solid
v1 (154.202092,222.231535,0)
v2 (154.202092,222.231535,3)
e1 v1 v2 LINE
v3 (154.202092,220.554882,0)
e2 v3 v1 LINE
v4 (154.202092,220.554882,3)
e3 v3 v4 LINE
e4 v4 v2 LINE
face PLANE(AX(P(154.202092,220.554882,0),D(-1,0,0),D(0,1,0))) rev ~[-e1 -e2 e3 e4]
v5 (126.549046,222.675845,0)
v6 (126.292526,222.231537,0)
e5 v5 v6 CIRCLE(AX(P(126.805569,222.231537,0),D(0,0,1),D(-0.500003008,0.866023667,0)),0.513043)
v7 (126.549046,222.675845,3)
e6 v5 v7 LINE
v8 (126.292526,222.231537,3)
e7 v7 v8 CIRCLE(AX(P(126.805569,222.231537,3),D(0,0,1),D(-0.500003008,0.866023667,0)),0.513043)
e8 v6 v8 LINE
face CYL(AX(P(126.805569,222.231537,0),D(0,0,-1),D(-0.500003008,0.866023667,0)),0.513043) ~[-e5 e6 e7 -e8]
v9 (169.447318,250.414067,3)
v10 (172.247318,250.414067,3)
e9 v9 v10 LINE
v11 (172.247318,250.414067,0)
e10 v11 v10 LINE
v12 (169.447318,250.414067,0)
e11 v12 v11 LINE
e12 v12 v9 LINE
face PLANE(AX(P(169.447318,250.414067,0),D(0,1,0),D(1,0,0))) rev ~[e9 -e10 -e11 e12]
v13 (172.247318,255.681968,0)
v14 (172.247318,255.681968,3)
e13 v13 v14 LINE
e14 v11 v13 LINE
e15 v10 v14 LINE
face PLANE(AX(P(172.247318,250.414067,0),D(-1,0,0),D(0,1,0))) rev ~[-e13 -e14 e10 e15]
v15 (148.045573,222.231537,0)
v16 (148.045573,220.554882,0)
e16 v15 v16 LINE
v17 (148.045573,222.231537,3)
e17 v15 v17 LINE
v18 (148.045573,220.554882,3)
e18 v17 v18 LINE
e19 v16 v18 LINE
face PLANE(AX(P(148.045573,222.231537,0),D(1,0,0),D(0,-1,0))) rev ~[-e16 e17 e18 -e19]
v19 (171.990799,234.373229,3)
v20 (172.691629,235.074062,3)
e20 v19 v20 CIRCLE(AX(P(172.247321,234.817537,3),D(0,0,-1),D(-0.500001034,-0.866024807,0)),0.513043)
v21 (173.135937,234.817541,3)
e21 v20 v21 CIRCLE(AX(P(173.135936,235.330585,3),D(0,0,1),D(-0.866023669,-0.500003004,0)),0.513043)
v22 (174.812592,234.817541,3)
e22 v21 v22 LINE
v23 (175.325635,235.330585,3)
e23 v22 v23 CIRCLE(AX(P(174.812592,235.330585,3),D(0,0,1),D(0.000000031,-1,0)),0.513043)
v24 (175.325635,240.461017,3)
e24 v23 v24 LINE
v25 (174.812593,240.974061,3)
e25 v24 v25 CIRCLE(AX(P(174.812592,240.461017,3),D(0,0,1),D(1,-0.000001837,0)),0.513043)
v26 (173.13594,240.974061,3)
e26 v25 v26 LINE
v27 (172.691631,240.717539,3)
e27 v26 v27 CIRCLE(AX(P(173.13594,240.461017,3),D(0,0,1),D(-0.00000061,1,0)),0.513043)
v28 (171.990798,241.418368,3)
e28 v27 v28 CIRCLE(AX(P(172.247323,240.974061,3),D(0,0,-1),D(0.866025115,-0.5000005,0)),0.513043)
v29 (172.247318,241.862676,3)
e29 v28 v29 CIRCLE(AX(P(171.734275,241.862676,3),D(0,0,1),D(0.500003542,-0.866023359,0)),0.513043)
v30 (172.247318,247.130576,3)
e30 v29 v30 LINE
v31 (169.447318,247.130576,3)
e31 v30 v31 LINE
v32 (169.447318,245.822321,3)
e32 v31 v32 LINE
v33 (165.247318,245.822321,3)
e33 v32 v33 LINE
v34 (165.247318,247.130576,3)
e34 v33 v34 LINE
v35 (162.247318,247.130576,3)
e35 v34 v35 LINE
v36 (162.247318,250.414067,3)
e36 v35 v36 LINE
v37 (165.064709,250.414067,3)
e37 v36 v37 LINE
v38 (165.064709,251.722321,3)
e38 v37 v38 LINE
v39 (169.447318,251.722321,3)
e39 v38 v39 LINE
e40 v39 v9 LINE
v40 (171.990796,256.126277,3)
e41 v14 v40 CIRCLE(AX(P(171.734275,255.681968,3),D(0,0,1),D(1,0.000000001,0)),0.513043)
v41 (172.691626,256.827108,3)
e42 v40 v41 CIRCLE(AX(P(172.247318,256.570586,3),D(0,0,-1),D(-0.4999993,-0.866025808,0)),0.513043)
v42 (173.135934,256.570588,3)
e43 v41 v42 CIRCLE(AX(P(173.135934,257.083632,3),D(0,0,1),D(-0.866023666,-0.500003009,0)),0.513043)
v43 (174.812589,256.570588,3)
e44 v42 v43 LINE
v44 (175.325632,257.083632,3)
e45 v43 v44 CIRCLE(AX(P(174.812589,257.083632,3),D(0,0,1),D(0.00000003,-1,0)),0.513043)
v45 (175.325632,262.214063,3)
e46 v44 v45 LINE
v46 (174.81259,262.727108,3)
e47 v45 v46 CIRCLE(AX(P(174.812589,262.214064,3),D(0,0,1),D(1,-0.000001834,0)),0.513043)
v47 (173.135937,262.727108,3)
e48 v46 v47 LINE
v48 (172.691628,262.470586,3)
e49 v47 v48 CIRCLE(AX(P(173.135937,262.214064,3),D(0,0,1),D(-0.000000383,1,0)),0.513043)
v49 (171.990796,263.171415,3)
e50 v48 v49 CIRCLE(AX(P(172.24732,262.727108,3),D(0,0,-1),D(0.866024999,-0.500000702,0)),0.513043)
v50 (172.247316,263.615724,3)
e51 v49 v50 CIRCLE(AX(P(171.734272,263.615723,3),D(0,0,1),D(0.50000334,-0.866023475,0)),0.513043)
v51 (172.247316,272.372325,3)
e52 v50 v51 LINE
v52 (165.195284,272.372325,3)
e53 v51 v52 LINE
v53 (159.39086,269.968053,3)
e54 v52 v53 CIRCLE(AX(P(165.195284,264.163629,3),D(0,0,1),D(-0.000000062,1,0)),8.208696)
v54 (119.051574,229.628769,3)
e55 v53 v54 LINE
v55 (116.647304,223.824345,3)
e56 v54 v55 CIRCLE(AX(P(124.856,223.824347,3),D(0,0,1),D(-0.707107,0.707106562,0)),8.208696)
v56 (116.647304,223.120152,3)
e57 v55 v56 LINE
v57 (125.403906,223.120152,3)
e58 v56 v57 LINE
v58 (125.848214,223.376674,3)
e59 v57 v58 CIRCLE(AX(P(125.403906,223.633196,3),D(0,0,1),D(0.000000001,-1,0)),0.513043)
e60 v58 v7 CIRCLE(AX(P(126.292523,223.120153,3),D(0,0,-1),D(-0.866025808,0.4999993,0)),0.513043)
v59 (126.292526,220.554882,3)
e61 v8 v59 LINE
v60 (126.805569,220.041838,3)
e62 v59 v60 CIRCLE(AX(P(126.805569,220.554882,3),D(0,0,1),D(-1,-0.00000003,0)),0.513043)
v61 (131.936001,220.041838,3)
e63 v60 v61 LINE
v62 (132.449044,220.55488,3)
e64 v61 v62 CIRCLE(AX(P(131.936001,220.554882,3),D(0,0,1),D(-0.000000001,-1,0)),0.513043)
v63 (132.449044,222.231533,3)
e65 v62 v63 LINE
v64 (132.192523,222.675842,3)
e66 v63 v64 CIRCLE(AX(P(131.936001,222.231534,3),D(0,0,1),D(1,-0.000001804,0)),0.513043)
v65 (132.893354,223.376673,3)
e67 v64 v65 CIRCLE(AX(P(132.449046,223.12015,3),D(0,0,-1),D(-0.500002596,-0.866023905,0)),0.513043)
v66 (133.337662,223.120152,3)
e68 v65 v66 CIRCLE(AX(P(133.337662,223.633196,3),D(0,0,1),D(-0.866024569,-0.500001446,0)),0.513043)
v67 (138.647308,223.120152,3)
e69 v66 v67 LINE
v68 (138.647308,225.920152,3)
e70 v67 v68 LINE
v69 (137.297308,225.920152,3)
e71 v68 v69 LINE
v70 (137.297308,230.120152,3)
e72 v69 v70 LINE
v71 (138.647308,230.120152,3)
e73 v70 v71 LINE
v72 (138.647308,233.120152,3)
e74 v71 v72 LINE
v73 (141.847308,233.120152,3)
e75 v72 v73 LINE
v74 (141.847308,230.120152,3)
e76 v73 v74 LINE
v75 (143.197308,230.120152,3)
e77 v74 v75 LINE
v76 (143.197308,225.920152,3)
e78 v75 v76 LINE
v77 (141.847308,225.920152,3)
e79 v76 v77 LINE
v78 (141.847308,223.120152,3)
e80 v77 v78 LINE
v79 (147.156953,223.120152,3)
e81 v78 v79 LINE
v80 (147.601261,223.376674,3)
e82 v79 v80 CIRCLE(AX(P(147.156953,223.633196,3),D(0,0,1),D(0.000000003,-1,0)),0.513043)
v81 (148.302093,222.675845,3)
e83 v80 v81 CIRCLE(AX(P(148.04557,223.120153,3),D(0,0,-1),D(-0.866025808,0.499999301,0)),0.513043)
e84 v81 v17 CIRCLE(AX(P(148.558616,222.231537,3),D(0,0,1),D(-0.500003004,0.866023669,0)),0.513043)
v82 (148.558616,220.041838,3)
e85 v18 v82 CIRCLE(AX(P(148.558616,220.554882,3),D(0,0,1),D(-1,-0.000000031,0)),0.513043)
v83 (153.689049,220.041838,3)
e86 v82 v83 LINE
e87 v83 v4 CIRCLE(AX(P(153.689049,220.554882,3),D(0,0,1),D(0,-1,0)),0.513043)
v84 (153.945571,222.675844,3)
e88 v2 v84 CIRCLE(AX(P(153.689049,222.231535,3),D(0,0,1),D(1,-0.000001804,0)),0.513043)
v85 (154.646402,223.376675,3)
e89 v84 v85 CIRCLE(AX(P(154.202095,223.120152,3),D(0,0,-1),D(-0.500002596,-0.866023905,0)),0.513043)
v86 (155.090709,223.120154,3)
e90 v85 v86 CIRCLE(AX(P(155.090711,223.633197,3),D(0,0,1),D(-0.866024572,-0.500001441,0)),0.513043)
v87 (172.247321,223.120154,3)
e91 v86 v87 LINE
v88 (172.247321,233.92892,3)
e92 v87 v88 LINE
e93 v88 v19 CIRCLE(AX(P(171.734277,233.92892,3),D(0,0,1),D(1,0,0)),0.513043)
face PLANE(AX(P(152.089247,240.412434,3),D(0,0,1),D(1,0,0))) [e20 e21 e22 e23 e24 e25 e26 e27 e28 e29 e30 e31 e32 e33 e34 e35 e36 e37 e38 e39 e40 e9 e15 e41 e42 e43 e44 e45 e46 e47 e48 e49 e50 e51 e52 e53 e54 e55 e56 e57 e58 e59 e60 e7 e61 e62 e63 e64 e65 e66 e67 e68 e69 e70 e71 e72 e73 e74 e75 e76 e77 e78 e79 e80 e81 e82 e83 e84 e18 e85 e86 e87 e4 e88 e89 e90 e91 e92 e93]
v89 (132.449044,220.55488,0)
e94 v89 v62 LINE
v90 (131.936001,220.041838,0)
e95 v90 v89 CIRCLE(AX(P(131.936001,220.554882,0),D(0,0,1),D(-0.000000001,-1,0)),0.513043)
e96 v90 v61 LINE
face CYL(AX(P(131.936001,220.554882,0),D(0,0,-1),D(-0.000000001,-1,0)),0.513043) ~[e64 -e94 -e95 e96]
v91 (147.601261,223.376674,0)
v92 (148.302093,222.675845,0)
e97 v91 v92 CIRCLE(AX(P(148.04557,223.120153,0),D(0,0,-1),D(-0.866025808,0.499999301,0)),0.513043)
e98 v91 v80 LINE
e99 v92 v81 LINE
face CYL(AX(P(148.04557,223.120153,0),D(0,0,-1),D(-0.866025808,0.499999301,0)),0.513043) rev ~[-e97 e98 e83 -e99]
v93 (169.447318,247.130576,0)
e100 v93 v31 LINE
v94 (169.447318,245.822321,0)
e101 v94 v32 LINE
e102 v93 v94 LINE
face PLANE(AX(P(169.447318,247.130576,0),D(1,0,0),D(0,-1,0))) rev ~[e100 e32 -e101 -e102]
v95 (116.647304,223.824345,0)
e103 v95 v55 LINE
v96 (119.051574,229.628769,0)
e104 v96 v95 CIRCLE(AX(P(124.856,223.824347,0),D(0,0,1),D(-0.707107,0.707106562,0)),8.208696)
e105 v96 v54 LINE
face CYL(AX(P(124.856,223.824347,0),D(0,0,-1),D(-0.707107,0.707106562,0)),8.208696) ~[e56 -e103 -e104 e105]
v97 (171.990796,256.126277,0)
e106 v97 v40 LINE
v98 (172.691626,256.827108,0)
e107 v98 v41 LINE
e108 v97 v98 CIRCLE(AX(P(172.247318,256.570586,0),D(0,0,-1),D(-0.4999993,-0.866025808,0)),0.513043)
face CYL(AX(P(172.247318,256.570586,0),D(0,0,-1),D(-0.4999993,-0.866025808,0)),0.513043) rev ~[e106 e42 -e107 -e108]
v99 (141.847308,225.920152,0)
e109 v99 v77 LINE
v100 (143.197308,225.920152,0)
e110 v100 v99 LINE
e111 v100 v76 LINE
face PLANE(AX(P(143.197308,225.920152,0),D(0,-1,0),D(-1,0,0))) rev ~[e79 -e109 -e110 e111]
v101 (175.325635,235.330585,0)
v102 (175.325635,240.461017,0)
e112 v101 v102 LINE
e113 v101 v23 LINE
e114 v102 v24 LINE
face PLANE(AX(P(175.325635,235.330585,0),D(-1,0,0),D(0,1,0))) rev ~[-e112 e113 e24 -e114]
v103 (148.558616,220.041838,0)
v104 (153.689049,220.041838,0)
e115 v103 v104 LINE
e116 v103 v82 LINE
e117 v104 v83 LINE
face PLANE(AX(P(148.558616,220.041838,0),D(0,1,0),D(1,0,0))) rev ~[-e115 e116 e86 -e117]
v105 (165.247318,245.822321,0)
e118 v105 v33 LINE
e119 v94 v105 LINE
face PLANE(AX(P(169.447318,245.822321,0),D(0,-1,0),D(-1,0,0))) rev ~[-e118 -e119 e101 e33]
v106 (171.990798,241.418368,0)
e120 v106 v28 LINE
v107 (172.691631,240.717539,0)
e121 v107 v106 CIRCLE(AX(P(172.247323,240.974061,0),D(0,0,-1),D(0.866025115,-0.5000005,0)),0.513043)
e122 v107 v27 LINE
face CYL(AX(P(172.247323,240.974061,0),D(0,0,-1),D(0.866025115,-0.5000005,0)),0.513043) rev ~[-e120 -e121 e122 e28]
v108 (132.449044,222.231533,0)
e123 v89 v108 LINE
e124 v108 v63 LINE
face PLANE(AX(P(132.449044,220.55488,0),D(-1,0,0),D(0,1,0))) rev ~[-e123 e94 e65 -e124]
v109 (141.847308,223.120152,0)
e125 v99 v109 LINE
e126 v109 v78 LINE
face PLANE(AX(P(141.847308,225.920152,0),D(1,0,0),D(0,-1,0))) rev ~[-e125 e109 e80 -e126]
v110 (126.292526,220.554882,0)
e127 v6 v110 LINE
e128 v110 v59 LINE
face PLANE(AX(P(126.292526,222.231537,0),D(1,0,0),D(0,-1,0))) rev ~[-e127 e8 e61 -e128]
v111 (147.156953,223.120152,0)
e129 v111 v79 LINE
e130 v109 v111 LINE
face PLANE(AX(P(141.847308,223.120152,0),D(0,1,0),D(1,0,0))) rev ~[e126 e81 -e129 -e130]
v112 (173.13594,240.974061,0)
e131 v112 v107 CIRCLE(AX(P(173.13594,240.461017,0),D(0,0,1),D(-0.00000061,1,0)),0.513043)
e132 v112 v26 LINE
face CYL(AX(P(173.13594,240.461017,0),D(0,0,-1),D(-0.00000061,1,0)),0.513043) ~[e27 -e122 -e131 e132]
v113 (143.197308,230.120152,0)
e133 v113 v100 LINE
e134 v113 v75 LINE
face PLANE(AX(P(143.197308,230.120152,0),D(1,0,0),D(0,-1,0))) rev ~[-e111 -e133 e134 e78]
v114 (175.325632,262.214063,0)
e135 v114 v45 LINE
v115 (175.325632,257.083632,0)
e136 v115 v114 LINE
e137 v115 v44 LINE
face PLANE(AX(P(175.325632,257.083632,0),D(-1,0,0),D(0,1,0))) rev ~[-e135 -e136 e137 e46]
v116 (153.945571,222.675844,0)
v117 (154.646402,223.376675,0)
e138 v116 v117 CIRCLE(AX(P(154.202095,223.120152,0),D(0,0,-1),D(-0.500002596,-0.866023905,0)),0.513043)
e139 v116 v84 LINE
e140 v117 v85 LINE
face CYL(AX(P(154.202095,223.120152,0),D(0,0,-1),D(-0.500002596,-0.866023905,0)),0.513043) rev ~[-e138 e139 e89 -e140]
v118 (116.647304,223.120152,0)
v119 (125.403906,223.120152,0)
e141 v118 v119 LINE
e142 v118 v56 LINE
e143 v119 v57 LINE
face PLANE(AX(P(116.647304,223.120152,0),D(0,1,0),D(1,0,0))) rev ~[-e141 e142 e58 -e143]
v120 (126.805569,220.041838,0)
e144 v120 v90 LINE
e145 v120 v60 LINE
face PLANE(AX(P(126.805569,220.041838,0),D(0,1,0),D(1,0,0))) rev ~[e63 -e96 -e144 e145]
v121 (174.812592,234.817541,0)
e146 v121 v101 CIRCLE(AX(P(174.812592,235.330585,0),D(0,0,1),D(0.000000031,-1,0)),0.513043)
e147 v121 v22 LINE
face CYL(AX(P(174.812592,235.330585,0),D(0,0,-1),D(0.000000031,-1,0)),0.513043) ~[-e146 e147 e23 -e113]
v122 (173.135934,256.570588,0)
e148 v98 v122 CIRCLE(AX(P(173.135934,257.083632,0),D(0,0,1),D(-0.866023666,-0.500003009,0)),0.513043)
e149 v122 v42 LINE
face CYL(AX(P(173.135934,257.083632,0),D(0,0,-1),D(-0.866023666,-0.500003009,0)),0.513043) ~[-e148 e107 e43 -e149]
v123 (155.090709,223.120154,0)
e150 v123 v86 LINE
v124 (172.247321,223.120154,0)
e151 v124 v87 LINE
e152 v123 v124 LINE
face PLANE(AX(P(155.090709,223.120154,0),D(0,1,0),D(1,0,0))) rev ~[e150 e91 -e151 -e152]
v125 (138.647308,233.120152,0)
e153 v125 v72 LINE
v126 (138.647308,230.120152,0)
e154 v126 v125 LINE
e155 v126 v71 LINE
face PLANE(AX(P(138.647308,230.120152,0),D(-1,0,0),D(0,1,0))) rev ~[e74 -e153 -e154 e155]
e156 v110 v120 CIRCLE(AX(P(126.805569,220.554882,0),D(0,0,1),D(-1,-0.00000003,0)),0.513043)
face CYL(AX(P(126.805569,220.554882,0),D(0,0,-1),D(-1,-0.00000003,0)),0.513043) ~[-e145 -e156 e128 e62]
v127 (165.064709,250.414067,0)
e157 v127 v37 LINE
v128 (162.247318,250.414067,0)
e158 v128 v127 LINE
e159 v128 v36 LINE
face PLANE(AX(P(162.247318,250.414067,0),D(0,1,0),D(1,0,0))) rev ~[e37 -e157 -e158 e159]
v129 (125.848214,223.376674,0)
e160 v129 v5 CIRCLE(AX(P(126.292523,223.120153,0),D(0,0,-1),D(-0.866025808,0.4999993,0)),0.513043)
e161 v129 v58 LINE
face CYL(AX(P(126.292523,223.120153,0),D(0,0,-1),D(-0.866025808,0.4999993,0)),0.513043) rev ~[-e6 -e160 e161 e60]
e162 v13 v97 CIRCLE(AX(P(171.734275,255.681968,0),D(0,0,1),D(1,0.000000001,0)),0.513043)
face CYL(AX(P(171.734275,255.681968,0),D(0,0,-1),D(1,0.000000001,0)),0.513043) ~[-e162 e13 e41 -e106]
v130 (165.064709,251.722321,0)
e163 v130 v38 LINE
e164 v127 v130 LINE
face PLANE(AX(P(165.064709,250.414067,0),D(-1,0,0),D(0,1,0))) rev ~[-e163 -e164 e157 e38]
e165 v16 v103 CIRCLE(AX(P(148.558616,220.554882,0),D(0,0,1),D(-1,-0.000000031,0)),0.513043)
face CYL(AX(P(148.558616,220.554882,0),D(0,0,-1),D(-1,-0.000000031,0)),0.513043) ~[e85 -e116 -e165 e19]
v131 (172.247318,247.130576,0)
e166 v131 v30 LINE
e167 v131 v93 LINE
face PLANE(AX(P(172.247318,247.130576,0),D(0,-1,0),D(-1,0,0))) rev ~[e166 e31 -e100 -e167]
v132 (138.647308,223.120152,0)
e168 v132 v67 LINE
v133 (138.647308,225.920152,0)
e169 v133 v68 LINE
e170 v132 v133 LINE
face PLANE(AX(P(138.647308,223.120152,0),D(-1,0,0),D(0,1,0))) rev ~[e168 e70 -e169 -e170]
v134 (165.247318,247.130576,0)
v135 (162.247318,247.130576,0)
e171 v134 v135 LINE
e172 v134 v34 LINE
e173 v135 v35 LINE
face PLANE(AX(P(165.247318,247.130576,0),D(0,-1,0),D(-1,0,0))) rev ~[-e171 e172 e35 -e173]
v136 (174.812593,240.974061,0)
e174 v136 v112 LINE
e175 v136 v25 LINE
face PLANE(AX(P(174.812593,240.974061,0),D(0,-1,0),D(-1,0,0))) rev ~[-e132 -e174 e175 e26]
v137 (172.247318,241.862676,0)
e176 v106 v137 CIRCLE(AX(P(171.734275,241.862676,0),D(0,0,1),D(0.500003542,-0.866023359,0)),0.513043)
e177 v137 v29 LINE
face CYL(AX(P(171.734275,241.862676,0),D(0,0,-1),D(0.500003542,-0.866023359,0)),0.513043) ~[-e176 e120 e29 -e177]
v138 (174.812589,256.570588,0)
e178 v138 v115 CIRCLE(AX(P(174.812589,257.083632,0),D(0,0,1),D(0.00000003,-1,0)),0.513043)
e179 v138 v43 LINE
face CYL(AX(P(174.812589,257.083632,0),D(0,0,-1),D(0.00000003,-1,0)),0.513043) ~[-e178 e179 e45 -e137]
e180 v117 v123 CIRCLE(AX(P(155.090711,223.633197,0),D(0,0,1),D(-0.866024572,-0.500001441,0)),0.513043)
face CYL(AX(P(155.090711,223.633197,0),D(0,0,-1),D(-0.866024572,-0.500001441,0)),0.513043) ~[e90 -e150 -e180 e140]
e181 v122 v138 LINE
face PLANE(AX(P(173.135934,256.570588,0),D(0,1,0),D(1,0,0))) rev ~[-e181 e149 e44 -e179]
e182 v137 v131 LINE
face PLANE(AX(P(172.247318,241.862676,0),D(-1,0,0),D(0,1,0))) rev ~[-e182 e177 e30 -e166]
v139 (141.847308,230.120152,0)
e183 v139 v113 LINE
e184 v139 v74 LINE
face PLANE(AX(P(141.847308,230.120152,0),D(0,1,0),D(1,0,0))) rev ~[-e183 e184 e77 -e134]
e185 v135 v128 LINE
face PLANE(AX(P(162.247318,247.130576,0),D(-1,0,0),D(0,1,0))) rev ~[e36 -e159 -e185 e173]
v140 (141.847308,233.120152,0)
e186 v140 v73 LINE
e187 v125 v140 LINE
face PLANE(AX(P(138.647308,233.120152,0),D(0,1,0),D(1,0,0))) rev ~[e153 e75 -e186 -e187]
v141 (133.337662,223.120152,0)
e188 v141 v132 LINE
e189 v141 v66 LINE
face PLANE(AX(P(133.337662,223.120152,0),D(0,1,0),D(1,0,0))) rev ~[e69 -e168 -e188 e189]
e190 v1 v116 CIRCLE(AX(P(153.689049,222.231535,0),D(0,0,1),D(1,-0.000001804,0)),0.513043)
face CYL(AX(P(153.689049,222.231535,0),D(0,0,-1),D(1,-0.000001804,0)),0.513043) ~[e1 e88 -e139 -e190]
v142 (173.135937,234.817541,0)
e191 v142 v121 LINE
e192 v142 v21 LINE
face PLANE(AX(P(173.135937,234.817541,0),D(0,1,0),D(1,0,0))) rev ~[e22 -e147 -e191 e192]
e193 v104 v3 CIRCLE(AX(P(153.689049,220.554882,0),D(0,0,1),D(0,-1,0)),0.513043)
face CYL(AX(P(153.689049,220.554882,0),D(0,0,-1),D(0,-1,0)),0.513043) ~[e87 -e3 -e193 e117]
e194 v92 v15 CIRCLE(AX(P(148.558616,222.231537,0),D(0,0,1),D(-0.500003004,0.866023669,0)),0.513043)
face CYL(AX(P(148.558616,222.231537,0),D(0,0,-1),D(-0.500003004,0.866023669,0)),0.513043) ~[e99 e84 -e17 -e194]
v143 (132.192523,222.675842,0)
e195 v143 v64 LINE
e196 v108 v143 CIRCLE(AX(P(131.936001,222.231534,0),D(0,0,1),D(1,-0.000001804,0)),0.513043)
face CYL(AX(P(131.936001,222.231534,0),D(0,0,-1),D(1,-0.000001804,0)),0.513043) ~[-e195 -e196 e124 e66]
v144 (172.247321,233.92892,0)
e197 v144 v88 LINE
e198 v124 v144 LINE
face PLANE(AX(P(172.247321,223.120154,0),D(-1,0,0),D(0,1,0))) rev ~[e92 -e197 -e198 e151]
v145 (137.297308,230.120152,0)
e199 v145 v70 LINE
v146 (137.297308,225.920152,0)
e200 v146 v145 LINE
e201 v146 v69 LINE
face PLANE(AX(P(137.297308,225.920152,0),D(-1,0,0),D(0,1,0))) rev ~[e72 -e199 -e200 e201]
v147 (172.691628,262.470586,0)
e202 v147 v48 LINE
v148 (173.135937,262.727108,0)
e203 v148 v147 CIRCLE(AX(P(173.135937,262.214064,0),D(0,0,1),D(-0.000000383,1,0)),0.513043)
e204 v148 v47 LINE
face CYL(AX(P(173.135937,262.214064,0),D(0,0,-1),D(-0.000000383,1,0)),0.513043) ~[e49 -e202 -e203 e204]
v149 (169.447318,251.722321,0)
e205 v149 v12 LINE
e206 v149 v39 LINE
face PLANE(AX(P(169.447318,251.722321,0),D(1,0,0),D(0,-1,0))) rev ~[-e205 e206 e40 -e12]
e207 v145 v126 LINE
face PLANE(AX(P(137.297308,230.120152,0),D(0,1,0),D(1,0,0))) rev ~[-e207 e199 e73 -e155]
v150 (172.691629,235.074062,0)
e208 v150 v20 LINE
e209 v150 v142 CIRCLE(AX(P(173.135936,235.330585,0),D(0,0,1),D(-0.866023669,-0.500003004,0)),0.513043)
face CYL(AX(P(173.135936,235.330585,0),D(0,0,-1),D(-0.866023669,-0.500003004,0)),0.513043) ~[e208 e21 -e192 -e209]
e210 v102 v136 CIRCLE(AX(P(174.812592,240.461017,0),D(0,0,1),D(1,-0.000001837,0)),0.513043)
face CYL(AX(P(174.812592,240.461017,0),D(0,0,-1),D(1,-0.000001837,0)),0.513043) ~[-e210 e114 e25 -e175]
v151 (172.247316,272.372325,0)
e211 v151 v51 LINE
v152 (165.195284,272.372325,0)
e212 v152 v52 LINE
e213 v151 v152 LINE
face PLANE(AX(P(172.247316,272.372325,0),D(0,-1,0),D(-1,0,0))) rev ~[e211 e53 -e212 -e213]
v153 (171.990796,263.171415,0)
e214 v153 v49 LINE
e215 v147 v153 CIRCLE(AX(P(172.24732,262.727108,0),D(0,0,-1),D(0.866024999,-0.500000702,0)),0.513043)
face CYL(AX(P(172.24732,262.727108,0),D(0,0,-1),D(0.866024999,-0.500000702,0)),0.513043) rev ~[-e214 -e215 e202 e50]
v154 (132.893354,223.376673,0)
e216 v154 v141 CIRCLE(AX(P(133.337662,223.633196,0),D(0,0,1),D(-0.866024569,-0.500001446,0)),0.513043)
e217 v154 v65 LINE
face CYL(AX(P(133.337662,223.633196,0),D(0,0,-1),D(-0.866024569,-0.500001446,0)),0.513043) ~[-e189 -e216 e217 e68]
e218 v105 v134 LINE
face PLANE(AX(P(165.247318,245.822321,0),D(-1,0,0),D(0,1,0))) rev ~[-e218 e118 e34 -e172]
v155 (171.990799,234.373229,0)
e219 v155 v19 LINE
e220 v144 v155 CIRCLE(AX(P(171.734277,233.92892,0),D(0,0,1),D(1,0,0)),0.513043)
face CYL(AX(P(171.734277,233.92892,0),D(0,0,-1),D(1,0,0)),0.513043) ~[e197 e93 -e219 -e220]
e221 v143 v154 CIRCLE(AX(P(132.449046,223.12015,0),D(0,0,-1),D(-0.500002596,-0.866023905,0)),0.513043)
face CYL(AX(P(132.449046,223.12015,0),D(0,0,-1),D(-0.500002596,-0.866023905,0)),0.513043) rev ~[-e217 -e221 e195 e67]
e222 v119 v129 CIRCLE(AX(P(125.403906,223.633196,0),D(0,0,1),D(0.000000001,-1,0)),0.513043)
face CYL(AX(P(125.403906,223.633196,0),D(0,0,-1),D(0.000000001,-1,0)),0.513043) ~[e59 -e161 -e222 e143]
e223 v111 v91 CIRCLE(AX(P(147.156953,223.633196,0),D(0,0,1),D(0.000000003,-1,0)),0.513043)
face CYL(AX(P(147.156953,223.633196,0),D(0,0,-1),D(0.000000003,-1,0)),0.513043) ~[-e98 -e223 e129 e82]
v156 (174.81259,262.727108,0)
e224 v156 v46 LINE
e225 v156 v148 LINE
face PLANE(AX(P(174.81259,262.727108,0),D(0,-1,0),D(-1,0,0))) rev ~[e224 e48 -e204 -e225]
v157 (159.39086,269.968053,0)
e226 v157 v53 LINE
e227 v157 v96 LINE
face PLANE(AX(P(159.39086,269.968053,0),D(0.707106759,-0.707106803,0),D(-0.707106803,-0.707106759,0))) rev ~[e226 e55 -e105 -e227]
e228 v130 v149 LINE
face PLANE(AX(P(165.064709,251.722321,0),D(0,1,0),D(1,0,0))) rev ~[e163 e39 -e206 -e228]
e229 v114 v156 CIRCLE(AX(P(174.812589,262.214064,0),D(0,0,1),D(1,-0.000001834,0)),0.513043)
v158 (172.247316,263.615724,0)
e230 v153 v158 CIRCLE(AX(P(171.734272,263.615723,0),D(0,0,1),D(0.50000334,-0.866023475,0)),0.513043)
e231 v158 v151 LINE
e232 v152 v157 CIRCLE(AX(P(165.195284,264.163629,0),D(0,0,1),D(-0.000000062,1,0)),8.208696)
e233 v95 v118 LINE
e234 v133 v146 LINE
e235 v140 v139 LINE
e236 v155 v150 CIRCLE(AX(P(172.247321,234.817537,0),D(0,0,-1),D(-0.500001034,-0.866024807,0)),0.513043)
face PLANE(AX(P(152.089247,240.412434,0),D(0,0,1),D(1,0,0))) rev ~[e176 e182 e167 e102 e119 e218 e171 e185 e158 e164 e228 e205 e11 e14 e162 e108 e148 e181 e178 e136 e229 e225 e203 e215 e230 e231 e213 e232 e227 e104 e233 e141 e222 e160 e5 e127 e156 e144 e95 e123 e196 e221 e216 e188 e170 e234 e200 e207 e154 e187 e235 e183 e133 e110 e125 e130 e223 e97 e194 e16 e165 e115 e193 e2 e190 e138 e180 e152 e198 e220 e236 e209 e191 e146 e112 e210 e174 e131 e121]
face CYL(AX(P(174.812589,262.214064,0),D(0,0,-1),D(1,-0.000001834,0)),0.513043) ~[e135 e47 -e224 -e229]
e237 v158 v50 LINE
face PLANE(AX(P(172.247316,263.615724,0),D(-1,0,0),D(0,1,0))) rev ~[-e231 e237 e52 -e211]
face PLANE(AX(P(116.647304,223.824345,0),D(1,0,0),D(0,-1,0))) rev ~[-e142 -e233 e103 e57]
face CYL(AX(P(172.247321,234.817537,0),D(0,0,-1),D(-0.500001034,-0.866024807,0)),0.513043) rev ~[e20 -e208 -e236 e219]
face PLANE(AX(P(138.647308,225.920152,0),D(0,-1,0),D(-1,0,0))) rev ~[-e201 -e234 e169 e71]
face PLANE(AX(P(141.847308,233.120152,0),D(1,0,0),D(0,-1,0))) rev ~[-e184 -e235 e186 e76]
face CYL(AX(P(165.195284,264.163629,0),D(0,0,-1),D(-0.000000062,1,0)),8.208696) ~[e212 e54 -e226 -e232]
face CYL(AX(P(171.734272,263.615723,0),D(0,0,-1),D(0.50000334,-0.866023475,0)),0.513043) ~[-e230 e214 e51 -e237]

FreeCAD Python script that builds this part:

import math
import FreeCAD as App
import Part
import Sketcher
Q = App.Units.Quantity

doc = App.newDocument("Part")
params = doc.addObject("Spreadsheet::Sheet", "Params")
for row, (alias, value) in enumerate([
    ("sketch1_width", "3 mm"),
    ("sketch1_height", "3 mm"),
    ("sketch1_height2", "3 mm"),
    ("sketch1_width2", "2.8 mm"),
    ("sketch1_width3", "4.2 mm"),
    ("pad1_length", "3 mm"),
], start=1):
    params.set(f"A{row}", alias)
    params.set(f"B{row}", "=" + value)
    params.setAlias(f"B{row}", alias)

body = doc.addObject("PartDesign::Body", "Body")

# Sketch on XY plane
sketch1 = body.newObject("Sketcher::SketchObject", "Sketch")
sketch1.AttachmentSupport = (doc.getObject("XY_Plane"), [""])
sketch1.MapMode = "FlatFace"
sketch1.addGeometry([
    Part.LineSegment(App.Vector(154.202092, 220.554882, 0), App.Vector(154.202092, 222.231535, 0)),  # 0
    Part.ArcOfCircle(Part.Circle(App.Vector(153.689049, 222.231535, 0), App.Vector(0, 0, 1), 0.513043), math.radians(-0.000103), math.radians(59.999897)),  # 1
    Part.ArcOfCircle(Part.Circle(App.Vector(154.202095, 223.120152, 0), App.Vector(0, 0, 1), 0.513043), math.radians(30.000213), math.radians(239.999828)),  # 2
    Part.ArcOfCircle(Part.Circle(App.Vector(155.090711, 223.633197, 0), App.Vector(0, 0, 1), 0.513043), math.radians(-149.999905), math.radians(-90.00018)),  # 3
    Part.LineSegment(App.Vector(155.090709, 223.120154, 0), App.Vector(172.247321, 223.120154, 0)),  # 4
    Part.LineSegment(App.Vector(172.247321, 223.120154, 0), App.Vector(172.247321, 233.92892, 0)),  # 5
    Part.ArcOfCircle(Part.Circle(App.Vector(171.734277, 233.92892, 0), App.Vector(0, 0, 1), 0.513043), math.radians(0), math.radians(60)),  # 6
    Part.ArcOfCircle(Part.Circle(App.Vector(172.247321, 234.817537, 0), App.Vector(0, 0, 1), 0.513043), math.radians(30.000316), math.radians(239.999932)),  # 7
    Part.ArcOfCircle(Part.Circle(App.Vector(173.135936, 235.330585, 0), App.Vector(0, 0, 1), 0.513043), math.radians(-149.999801), math.radians(-89.999962)),  # 8
    Part.LineSegment(App.Vector(173.135937, 234.817541, 0), App.Vector(174.812592, 234.817541, 0)),  # 9
    Part.ArcOfCircle(Part.Circle(App.Vector(174.812592, 235.330585, 0), App.Vector(0, 0, 1), 0.513043), math.radians(-89.999998), math.radians(0.000002)),  # 10
    Part.LineSegment(App.Vector(175.325635, 235.330585, 0), App.Vector(175.325635, 240.461017, 0)),  # 11
    Part.ArcOfCircle(Part.Circle(App.Vector(174.812592, 240.461017, 0), App.Vector(0, 0, 1), 0.513043), math.radians(-0.000105), math.radians(89.999895)),  # 12
    Part.LineSegment(App.Vector(174.812593, 240.974061, 0), App.Vector(173.13594, 240.974061, 0)),  # 13
    Part.ArcOfCircle(Part.Circle(App.Vector(173.13594, 240.461017, 0), App.Vector(0, 0, 1), 0.513043), math.radians(90.000035), math.radians(150.000036)),  # 14
    Part.ArcOfCircle(Part.Circle(App.Vector(172.247323, 240.974061, 0), App.Vector(0, 0, 1), 0.513043), math.radians(120.000352), math.radians(329.999967)),  # 15
    Part.ArcOfCircle(Part.Circle(App.Vector(171.734275, 241.862676, 0), App.Vector(0, 0, 1), 0.513043), math.radians(-59.999766), math.radians(0.000073)),  # 16
    Part.LineSegment(App.Vector(172.247318, 241.862676, 0), App.Vector(172.247318, 247.130576, 0)),  # 17
    Part.LineSegment(App.Vector(172.247318, 247.130576, 0), App.Vector(169.447318, 247.130576, 0)),  # 18
    Part.LineSegment(App.Vector(169.447318, 247.130576, 0), App.Vector(169.447318, 245.822321, 0)),  # 19
    Part.LineSegment(App.Vector(169.447318, 245.822321, 0), App.Vector(165.247318, 245.822321, 0)),  # 20
    Part.LineSegment(App.Vector(165.247318, 245.822321, 0), App.Vector(165.247318, 247.130576, 0)),  # 21
    Part.LineSegment(App.Vector(165.247318, 247.130576, 0), App.Vector(162.247318, 247.130576, 0)),  # 22
    Part.LineSegment(App.Vector(162.247318, 247.130576, 0), App.Vector(162.247318, 250.414067, 0)),  # 23
    Part.LineSegment(App.Vector(162.247318, 250.414067, 0), App.Vector(165.064709, 250.414067, 0)),  # 24
    Part.LineSegment(App.Vector(165.064709, 250.414067, 0), App.Vector(165.064709, 251.722321, 0)),  # 25
    Part.LineSegment(App.Vector(165.064709, 251.722321, 0), App.Vector(169.447318, 251.722321, 0)),  # 26
    Part.LineSegment(App.Vector(169.447318, 251.722321, 0), App.Vector(169.447318, 250.414067, 0)),  # 27
    Part.LineSegment(App.Vector(169.447318, 250.414067, 0), App.Vector(172.247318, 250.414067, 0)),  # 28
    Part.LineSegment(App.Vector(172.247318, 250.414067, 0), App.Vector(172.247318, 255.681968, 0)),  # 29
    Part.ArcOfCircle(Part.Circle(App.Vector(171.734275, 255.681968, 0), App.Vector(0, 0, 1), 0.513043), math.radians(0), math.radians(60)),  # 30
    Part.ArcOfCircle(Part.Circle(App.Vector(172.247318, 256.570586, 0), App.Vector(0, 0, 1), 0.513043), math.radians(30.000118), math.radians(240.000046)),  # 31
    Part.ArcOfCircle(Part.Circle(App.Vector(173.135934, 257.083632, 0), App.Vector(0, 0, 1), 0.513043), math.radians(-149.999801), math.radians(-89.999963)),  # 32
    Part.LineSegment(App.Vector(173.135934, 256.570588, 0), App.Vector(174.812589, 256.570588, 0)),  # 33
    Part.ArcOfCircle(Part.Circle(App.Vector(174.812589, 257.083632, 0), App.Vector(0, 0, 1), 0.513043), math.radians(-89.999998), math.radians(0.000002)),  # 34
    Part.LineSegment(App.Vector(175.325632, 257.083632, 0), App.Vector(175.325632, 262.214063, 0)),  # 35
    Part.ArcOfCircle(Part.Circle(App.Vector(174.812589, 262.214064, 0), App.Vector(0, 0, 1), 0.513043), math.radians(-0.000105), math.radians(89.999895)),  # 36
    Part.LineSegment(App.Vector(174.81259, 262.727108, 0), App.Vector(173.135937, 262.727108, 0)),  # 37
    Part.ArcOfCircle(Part.Circle(App.Vector(173.135937, 262.214064, 0), App.Vector(0, 0, 1), 0.513043), math.radians(90.000022), math.radians(150.000022)),  # 38
    Part.ArcOfCircle(Part.Circle(App.Vector(172.24732, 262.727108, 0), App.Vector(0, 0, 1), 0.513043), math.radians(120.000338), math.radians(329.999954)),  # 39
    Part.ArcOfCircle(Part.Circle(App.Vector(171.734272, 263.615723, 0), App.Vector(0, 0, 1), 0.513043), math.radians(-59.999779), math.radians(0.00006)),  # 40
    Part.LineSegment(App.Vector(172.247316, 263.615724, 0), App.Vector(172.247316, 272.372325, 0)),  # 41
    Part.LineSegment(App.Vector(172.247316, 272.372325, 0), App.Vector(165.195284, 272.372325, 0)),  # 42
    Part.ArcOfCircle(Part.Circle(App.Vector(165.195284, 264.163629, 0), App.Vector(0, 0, 1), 8.208696), math.radians(90.000004), math.radians(135.000003)),  # 43
    Part.LineSegment(App.Vector(159.39086, 269.968053, 0), App.Vector(119.051574, 229.628769, 0)),  # 44
    Part.ArcOfCircle(Part.Circle(App.Vector(124.856, 223.824347, 0), App.Vector(0, 0, 1), 8.208696), math.radians(135.000018), math.radians(180.000011)),  # 45
    Part.LineSegment(App.Vector(116.647304, 223.824345, 0), App.Vector(116.647304, 223.120152, 0)),  # 46
    Part.LineSegment(App.Vector(116.647304, 223.120152, 0), App.Vector(125.403906, 223.120152, 0)),  # 47
    Part.ArcOfCircle(Part.Circle(App.Vector(125.403906, 223.633196, 0), App.Vector(0, 0, 1), 0.513043), math.radians(-90), math.radians(-30)),  # 48
    Part.ArcOfCircle(Part.Circle(App.Vector(126.292523, 223.120153, 0), App.Vector(0, 0, 1), 0.513043), math.radians(-59.999882), math.radians(150.000046)),  # 49
    Part.ArcOfCircle(Part.Circle(App.Vector(126.805569, 222.231537, 0), App.Vector(0, 0, 1), 0.513043), math.radians(120.000199), math.radians(180.000038)),  # 50
    Part.LineSegment(App.Vector(126.292526, 222.231537, 0), App.Vector(126.292526, 220.554882, 0)),  # 51
    Part.ArcOfCircle(Part.Circle(App.Vector(126.805569, 220.554882, 0), App.Vector(0, 0, 1), 0.513043), math.radians(-179.999998), math.radians(-89.999998)),  # 52
    Part.LineSegment(App.Vector(126.805569, 220.041838, 0), App.Vector(131.936001, 220.041838, 0)),  # 53
    Part.ArcOfCircle(Part.Circle(App.Vector(131.936001, 220.554882, 0), App.Vector(0, 0, 1), 0.513043), math.radians(-90), math.radians(-0.000161)),  # 54
    Part.LineSegment(App.Vector(132.449044, 220.55488, 0), App.Vector(132.449044, 222.231533, 0)),  # 55
    Part.ArcOfCircle(Part.Circle(App.Vector(131.936001, 222.231534, 0), App.Vector(0, 0, 1), 0.513043), math.radians(-0.000103), math.radians(59.999897)),  # 56
    Part.ArcOfCircle(Part.Circle(App.Vector(132.449046, 223.12015, 0), App.Vector(0, 0, 1), 0.513043), math.radians(30.000213), math.radians(239.999828)),  # 57
    Part.ArcOfCircle(Part.Circle(App.Vector(133.337662, 223.633196, 0), App.Vector(0, 0, 1), 0.513043), math.radians(-149.999904), math.radians(-90.000066)),  # 58
    Part.LineSegment(App.Vector(133.337662, 223.120152, 0), App.Vector(138.647308, 223.120152, 0)),  # 59
    Part.LineSegment(App.Vector(138.647308, 223.120152, 0), App.Vector(138.647308, 225.920152, 0)),  # 60
    Part.LineSegment(App.Vector(138.647308, 225.920152, 0), App.Vector(137.297308, 225.920152, 0)),  # 61
    Part.LineSegment(App.Vector(137.297308, 225.920152, 0), App.Vector(137.297308, 230.120152, 0)),  # 62
    Part.LineSegment(App.Vector(137.297308, 230.120152, 0), App.Vector(138.647308, 230.120152, 0)),  # 63
    Part.LineSegment(App.Vector(138.647308, 230.120152, 0), App.Vector(138.647308, 233.120152, 0)),  # 64
    Part.LineSegment(App.Vector(138.647308, 233.120152, 0), App.Vector(141.847308, 233.120152, 0)),  # 65
    Part.LineSegment(App.Vector(141.847308, 233.120152, 0), App.Vector(141.847308, 230.120152, 0)),  # 66
    Part.LineSegment(App.Vector(141.847308, 230.120152, 0), App.Vector(143.197308, 230.120152, 0)),  # 67
    Part.LineSegment(App.Vector(143.197308, 230.120152, 0), App.Vector(143.197308, 225.920152, 0)),  # 68
    Part.LineSegment(App.Vector(143.197308, 225.920152, 0), App.Vector(141.847308, 225.920152, 0)),  # 69
    Part.LineSegment(App.Vector(141.847308, 225.920152, 0), App.Vector(141.847308, 223.120152, 0)),  # 70
    Part.LineSegment(App.Vector(141.847308, 223.120152, 0), App.Vector(147.156953, 223.120152, 0)),  # 71
    Part.ArcOfCircle(Part.Circle(App.Vector(147.156953, 223.633196, 0), App.Vector(0, 0, 1), 0.513043), math.radians(-90), math.radians(-30)),  # 72
    Part.ArcOfCircle(Part.Circle(App.Vector(148.04557, 223.120153, 0), App.Vector(0, 0, 1), 0.513043), math.radians(-59.999882), math.radians(150.000046)),  # 73
    Part.ArcOfCircle(Part.Circle(App.Vector(148.558616, 222.231537, 0), App.Vector(0, 0, 1), 0.513043), math.radians(120.000199), math.radians(180.000038)),  # 74
    Part.LineSegment(App.Vector(148.045573, 222.231537, 0), App.Vector(148.045573, 220.554882, 0)),  # 75
    Part.ArcOfCircle(Part.Circle(App.Vector(148.558616, 220.554882, 0), App.Vector(0, 0, 1), 0.513043), math.radians(-179.999998), math.radians(-89.999998)),  # 76
    Part.LineSegment(App.Vector(148.558616, 220.041838, 0), App.Vector(153.689049, 220.041838, 0)),  # 77
    Part.ArcOfCircle(Part.Circle(App.Vector(153.689049, 220.554882, 0), App.Vector(0, 0, 1), 0.513043), math.radians(-90), math.radians(0)),  # 78
], False)
sketch1.addConstraint([
    Sketcher.Constraint("Coincident", 0, 2, 1, 1),
    Sketcher.Constraint("Coincident", 1, 2, 2, 2),
    Sketcher.Constraint("Coincident", 2, 1, 3, 1),
    Sketcher.Constraint("Coincident", 3, 2, 4, 1),
    Sketcher.Constraint("Coincident", 4, 2, 5, 1),
    Sketcher.Constraint("Coincident", 5, 2, 6, 1),
    Sketcher.Constraint("Coincident", 6, 2, 7, 2),
    Sketcher.Constraint("Coincident", 7, 1, 8, 1),
    Sketcher.Constraint("Coincident", 8, 2, 9, 1),
    Sketcher.Constraint("Coincident", 9, 2, 10, 1),
    Sketcher.Constraint("Coincident", 10, 2, 11, 1),
    Sketcher.Constraint("Coincident", 11, 2, 12, 1),
    Sketcher.Constraint("Coincident", 12, 2, 13, 1),
    Sketcher.Constraint("Coincident", 13, 2, 14, 1),
    Sketcher.Constraint("Coincident", 14, 2, 15, 2),
    Sketcher.Constraint("Coincident", 15, 1, 16, 1),
    Sketcher.Constraint("Coincident", 16, 2, 17, 1),
    Sketcher.Constraint("Coincident", 17, 2, 18, 1),
    Sketcher.Constraint("Coincident", 18, 2, 19, 1),
    Sketcher.Constraint("Coincident", 19, 2, 20, 1),
    Sketcher.Constraint("Coincident", 20, 2, 21, 1),
    Sketcher.Constraint("Coincident", 21, 2, 22, 1),
    Sketcher.Constraint("Coincident", 22, 2, 23, 1),
    Sketcher.Constraint("Coincident", 23, 2, 24, 1),
    Sketcher.Constraint("Coincident", 24, 2, 25, 1),
    Sketcher.Constraint("Coincident", 25, 2, 26, 1),
    Sketcher.Constraint("Coincident", 26, 2, 27, 1),
    Sketcher.Constraint("Coincident", 27, 2, 28, 1),
    Sketcher.Constraint("Coincident", 28, 2, 29, 1),
    Sketcher.Constraint("Coincident", 29, 2, 30, 1),
    Sketcher.Constraint("Coincident", 30, 2, 31, 2),
    Sketcher.Constraint("Coincident", 31, 1, 32, 1),
    Sketcher.Constraint("Coincident", 32, 2, 33, 1),
    Sketcher.Constraint("Coincident", 33, 2, 34, 1),
    Sketcher.Constraint("Coincident", 34, 2, 35, 1),
    Sketcher.Constraint("Coincident", 35, 2, 36, 1),
    Sketcher.Constraint("Coincident", 36, 2, 37, 1),
    Sketcher.Constraint("Coincident", 37, 2, 38, 1),
    Sketcher.Constraint("Coincident", 38, 2, 39, 2),
    Sketcher.Constraint("Coincident", 39, 1, 40, 1),
    Sketcher.Constraint("Coincident", 40, 2, 41, 1),
    Sketcher.Constraint("Coincident", 41, 2, 42, 1),
    Sketcher.Constraint("Coincident", 42, 2, 43, 1),
    Sketcher.Constraint("Coincident", 43, 2, 44, 1),
    Sketcher.Constraint("Coincident", 44, 2, 45, 1),
    Sketcher.Constraint("Coincident", 45, 2, 46, 1),
    Sketcher.Constraint("Coincident", 46, 2, 47, 1),
    Sketcher.Constraint("Coincident", 47, 2, 48, 1),
    Sketcher.Constraint("Coincident", 48, 2, 49, 2),
    Sketcher.Constraint("Coincident", 49, 1, 50, 1),
    Sketcher.Constraint("Coincident", 50, 2, 51, 1),
    Sketcher.Constraint("Coincident", 51, 2, 52, 1),
    Sketcher.Constraint("Coincident", 52, 2, 53, 1),
    Sketcher.Constraint("Coincident", 53, 2, 54, 1),
    Sketcher.Constraint("Coincident", 54, 2, 55, 1),
    Sketcher.Constraint("Coincident", 55, 2, 56, 1),
    Sketcher.Constraint("Coincident", 56, 2, 57, 2),
    Sketcher.Constraint("Coincident", 57, 1, 58, 1),
    Sketcher.Constraint("Coincident", 58, 2, 59, 1),
    Sketcher.Constraint("Coincident", 59, 2, 60, 1),
    Sketcher.Constraint("Coincident", 60, 2, 61, 1),
    Sketcher.Constraint("Coincident", 61, 2, 62, 1),
    Sketcher.Constraint("Coincident", 62, 2, 63, 1),
    Sketcher.Constraint("Coincident", 63, 2, 64, 1),
    Sketcher.Constraint("Coincident", 64, 2, 65, 1),
    Sketcher.Constraint("Coincident", 65, 2, 66, 1),
    Sketcher.Constraint("Coincident", 66, 2, 67, 1),
    Sketcher.Constraint("Coincident", 67, 2, 68, 1),
    Sketcher.Constraint("Coincident", 68, 2, 69, 1),
    Sketcher.Constraint("Coincident", 69, 2, 70, 1),
    Sketcher.Constraint("Coincident", 70, 2, 71, 1),
    Sketcher.Constraint("Coincident", 71, 2, 72, 1),
    Sketcher.Constraint("Coincident", 72, 2, 73, 2),
    Sketcher.Constraint("Coincident", 73, 1, 74, 1),
    Sketcher.Constraint("Coincident", 74, 2, 75, 1),
    Sketcher.Constraint("Coincident", 75, 2, 76, 1),
    Sketcher.Constraint("Coincident", 76, 2, 77, 1),
    Sketcher.Constraint("Coincident", 77, 2, 78, 1),
    Sketcher.Constraint("Coincident", 78, 2, 0, 1),
    Sketcher.Constraint("Vertical", 0),
    Sketcher.Constraint("Horizontal", 4),
    Sketcher.Constraint("Vertical", 5),
    Sketcher.Constraint("Horizontal", 9),
    Sketcher.Constraint("Vertical", 11),
    Sketcher.Constraint("Horizontal", 13),
    Sketcher.Constraint("Vertical", 17),
    Sketcher.Constraint("Horizontal", 18),
    Sketcher.Constraint("Vertical", 19),
    Sketcher.Constraint("Horizontal", 20),
    Sketcher.Constraint("Vertical", 21),
    Sketcher.Constraint("Horizontal", 22),
    Sketcher.Constraint("Vertical", 23),
    Sketcher.Constraint("Horizontal", 24),
    Sketcher.Constraint("Vertical", 25),
    Sketcher.Constraint("Horizontal", 26),
    Sketcher.Constraint("Vertical", 27),
    Sketcher.Constraint("Horizontal", 28),
    Sketcher.Constraint("Vertical", 29),
    Sketcher.Constraint("Horizontal", 33),
    Sketcher.Constraint("Vertical", 35),
    Sketcher.Constraint("Horizontal", 37),
    Sketcher.Constraint("Vertical", 41),
    Sketcher.Constraint("Horizontal", 42),
    Sketcher.Constraint("Vertical", 46),
    Sketcher.Constraint("Horizontal", 47),
    Sketcher.Constraint("Vertical", 51),
    Sketcher.Constraint("Horizontal", 53),
    Sketcher.Constraint("Vertical", 55),
    Sketcher.Constraint("Horizontal", 59),
    Sketcher.Constraint("Vertical", 60),
    Sketcher.Constraint("Horizontal", 61),
    Sketcher.Constraint("Vertical", 62),
    Sketcher.Constraint("Horizontal", 63),
    Sketcher.Constraint("Vertical", 64),
    Sketcher.Constraint("Horizontal", 65),
    Sketcher.Constraint("Vertical", 66),
    Sketcher.Constraint("Horizontal", 67),
    Sketcher.Constraint("Vertical", 68),
    Sketcher.Constraint("Horizontal", 69),
    Sketcher.Constraint("Vertical", 70),
    Sketcher.Constraint("Horizontal", 71),
    Sketcher.Constraint("Vertical", 75),
    Sketcher.Constraint("Horizontal", 77),
    Sketcher.Constraint("DistanceX", 22, 2, 22, 1, Q("3 mm")),
    Sketcher.Constraint("DistanceY", 64, 1, 64, 2, Q("3 mm")),
    Sketcher.Constraint("DistanceY", 66, 2, 66, 1, Q("3 mm")),
    Sketcher.Constraint("DistanceX", 18, 2, 18, 1, Q("2.8 mm")),
    Sketcher.Constraint("DistanceX", 20, 2, 20, 1, Q("4.2 mm")),
    Sketcher.Constraint("DistanceX", 28, 1, 28, 2, Q("2.8 mm")),
    Sketcher.Constraint("DistanceX", 65, 1, 65, 2, Q("3.2 mm")),
    Sketcher.Constraint("DistanceY", 60, 1, 60, 2, Q("2.8 mm")),
    Sketcher.Constraint("DistanceY", 62, 1, 62, 2, Q("4.2 mm")),
    Sketcher.Constraint("DistanceY", 68, 2, 68, 1, Q("4.2 mm")),
    Sketcher.Constraint("DistanceY", 70, 2, 70, 1, Q("2.8 mm")),
    Sketcher.Constraint("DistanceX", 61, 2, 61, 1, Q("1.35 mm")),
    Sketcher.Constraint("DistanceX", 63, 1, 63, 2, Q("1.35 mm")),
    Sketcher.Constraint("DistanceX", 67, 1, 67, 2, Q("1.35 mm")),
    Sketcher.Constraint("DistanceX", 69, 2, 69, 1, Q("1.35 mm")),
    Sketcher.Constraint("DistanceX", 47, 1, 47, 2, Q("8.756601 mm")),
    Sketcher.Constraint("DistanceY", 17, 1, 17, 2, Q("5.2679 mm")),
    Sketcher.Constraint("DistanceY", 29, 1, 29, 2, Q("5.267902 mm")),
    Sketcher.Constraint("DistanceY", 41, 1, 41, 2, Q("8.756601 mm")),
    Sketcher.Constraint("DistanceX", -1, 1, 45, 3, Q("124.856 mm")),
    Sketcher.Constraint("DistanceX", -1, 1, 54, 3, Q("131.936001 mm")),
    Sketcher.Constraint("DistanceX", -1, 1, 56, 3, Q("131.936001 mm")),
    Sketcher.Constraint("DistanceX", -1, 1, 53, 2, Q("131.936001 mm")),
    Sketcher.Constraint("Radius", 1, Q("0.513043 mm")),
    Sketcher.Constraint("Radius", 2, Q("0.513043 mm")),
    Sketcher.Constraint("Radius", 3, Q("0.513043 mm")),
    Sketcher.Constraint("Radius", 6, Q("0.513043 mm")),
    Sketcher.Constraint("Radius", 7, Q("0.513043 mm")),
    Sketcher.Constraint("Radius", 8, Q("0.513043 mm")),
    Sketcher.Constraint("Radius", 10, Q("0.513043 mm")),
    Sketcher.Constraint("Radius", 12, Q("0.513043 mm")),
    Sketcher.Constraint("Radius", 14, Q("0.513043 mm")),
    Sketcher.Constraint("Radius", 15, Q("0.513043 mm")),
    Sketcher.Constraint("Radius", 16, Q("0.513043 mm")),
    Sketcher.Constraint("Radius", 30, Q("0.513043 mm")),
    Sketcher.Constraint("Radius", 31, Q("0.513043 mm")),
    Sketcher.Constraint("Radius", 32, Q("0.513043 mm")),
    Sketcher.Constraint("Radius", 34, Q("0.513043 mm")),
    Sketcher.Constraint("Radius", 36, Q("0.513043 mm")),
    Sketcher.Constraint("Radius", 38, Q("0.513043 mm")),
    Sketcher.Constraint("Radius", 39, Q("0.513043 mm")),
    Sketcher.Constraint("Radius", 40, Q("0.513043 mm")),
    Sketcher.Constraint("Radius", 43, Q("8.208696 mm")),
    Sketcher.Constraint("Radius", 45, Q("8.208696 mm")),
    Sketcher.Constraint("Radius", 48, Q("0.513043 mm")),
    Sketcher.Constraint("Radius", 49, Q("0.513043 mm")),
    Sketcher.Constraint("Radius", 50, Q("0.513043 mm")),
    Sketcher.Constraint("Radius", 52, Q("0.513043 mm")),
    Sketcher.Constraint("Radius", 54, Q("0.513043 mm")),
    Sketcher.Constraint("Radius", 57, Q("0.513043 mm")),
    Sketcher.Constraint("Radius", 58, Q("0.513043 mm")),
    Sketcher.Constraint("Radius", 72, Q("0.513043 mm")),
    Sketcher.Constraint("Radius", 73, Q("0.513043 mm")),
    Sketcher.Constraint("Radius", 74, Q("0.513043 mm")),
    Sketcher.Constraint("Radius", 76, Q("0.513043 mm")),
    Sketcher.Constraint("Radius", 78, Q("0.513043 mm")),
    Sketcher.Constraint("DistanceX", 4, 1, 4, 2, Q("17.156612 mm")),
    Sketcher.Constraint("DistanceX", 24, 1, 24, 2, Q("2.817391 mm")),
    Sketcher.Constraint("DistanceX", 26, 1, 26, 2, Q("4.382609 mm")),
    Sketcher.Constraint("DistanceX", 42, 2, 42, 1, Q("7.052032 mm")),
    Sketcher.Constraint("DistanceX", 53, 1, 53, 2, Q("5.130432 mm")),
    Sketcher.Constraint("DistanceY", 11, 1, 11, 2, Q("5.130432 mm")),
    Sketcher.Constraint("DistanceY", 23, 1, 23, 2, Q("3.283491 mm")),
    Sketcher.Constraint("DistanceY", 35, 1, 35, 2, Q("5.130432 mm")),
    Sketcher.Constraint("DistanceX", -1, 1, 6, 2, Q("171.990799 mm")),
    Sketcher.Constraint("DistanceX", -1, 1, 15, 1, Q("171.990798 mm")),
    Sketcher.Constraint("DistanceX", 9, 1, 9, 2, Q("1.676655 mm")),
    Sketcher.Constraint("DistanceX", 13, 2, 13, 1, Q("1.676653 mm")),
    Sketcher.Constraint("DistanceX", 33, 1, 33, 2, Q("1.676655 mm")),
    Sketcher.Constraint("DistanceX", 37, 2, 37, 1, Q("1.676653 mm")),
    Sketcher.Constraint("DistanceX", 59, 1, 59, 2, Q("5.309646 mm")),
    Sketcher.Constraint("DistanceX", 71, 1, 71, 2, Q("5.309644 mm")),
    Sketcher.Constraint("DistanceX", 77, 1, 77, 2, Q("5.130433 mm")),
    Sketcher.Constraint("DistanceY", 0, 1, 0, 2, Q("1.676653 mm")),
    Sketcher.Constraint("DistanceY", 5, 1, 5, 2, Q("10.808766 mm")),
    Sketcher.Constraint("DistanceY", 19, 2, 19, 1, Q("1.308255 mm")),
    Sketcher.Constraint("DistanceY", 21, 1, 21, 2, Q("1.308255 mm")),
    Sketcher.Constraint("DistanceY", 25, 1, 25, 2, Q("1.308255 mm")),
    Sketcher.Constraint("DistanceY", 27, 2, 27, 1, Q("1.308255 mm")),
    Sketcher.Constraint("DistanceY", 46, 2, 46, 1, Q("0.704193 mm")),
    Sketcher.Constraint("DistanceY", 51, 2, 51, 1, Q("1.676655 mm")),
    Sketcher.Constraint("DistanceY", 55, 1, 55, 2, Q("1.676653 mm")),
    Sketcher.Constraint("DistanceY", 75, 2, 75, 1, Q("1.676655 mm")),
    Sketcher.Constraint("DistanceX", -1, 1, 1, 3, Q("153.689049 mm")),
    Sketcher.Constraint("DistanceY", -1, 1, 2, 3, Q("223.120152 mm")),
    Sketcher.Constraint("DistanceX", -1, 1, 3, 3, Q("155.090711 mm")),
    Sketcher.Constraint("DistanceY", -1, 1, 6, 3, Q("233.92892 mm")),
    Sketcher.Constraint("DistanceX", -1, 1, 7, 3, Q("172.247321 mm")),
    Sketcher.Constraint("DistanceX", -1, 1, 10, 3, Q("174.812592 mm")),
    Sketcher.Constraint("DistanceX", -1, 1, 14, 3, Q("173.13594 mm")),
    Sketcher.Constraint("DistanceY", -1, 1, 15, 3, Q("240.974061 mm")),
    Sketcher.Constraint("DistanceY", -1, 1, 30, 3, Q("255.681968 mm")),
    Sketcher.Constraint("DistanceY", -1, 1, 32, 3, Q("257.083632 mm")),
    Sketcher.Constraint("DistanceX", -1, 1, 34, 3, Q("174.812589 mm")),
    Sketcher.Constraint("DistanceX", -1, 1, 39, 3, Q("172.24732 mm")),
    Sketcher.Constraint("DistanceY", -1, 1, 39, 3, Q("262.727108 mm")),
    Sketcher.Constraint("DistanceY", -1, 1, 43, 3, Q("264.163629 mm")),
    Sketcher.Constraint("DistanceX", -1, 1, 50, 3, Q("126.805569 mm")),
    Sketcher.Constraint("DistanceY", -1, 1, 52, 3, Q("220.554882 mm")),
    Sketcher.Constraint("DistanceY", -1, 1, 57, 3, Q("223.12015 mm")),
    Sketcher.Constraint("DistanceX", -1, 1, 73, 3, Q("148.04557 mm")),
    Sketcher.Constraint("DistanceY", -1, 1, 76, 3, Q("220.554882 mm")),
    Sketcher.Constraint("DistanceX", -1, 1, 1, 2, Q("153.945571 mm")),
    Sketcher.Constraint("DistanceX", -1, 1, 3, 2, Q("155.090709 mm")),
    Sketcher.Constraint("DistanceY", -1, 1, 5, 2, Q("233.92892 mm")),
    Sketcher.Constraint("DistanceX", -1, 1, 7, 1, Q("172.691629 mm")),
    Sketcher.Constraint("DistanceY", -1, 1, 8, 2, Q("234.817541 mm")),
    Sketcher.Constraint("DistanceX", -1, 1, 9, 2, Q("174.812592 mm")),
    Sketcher.Constraint("DistanceY", -1, 1, 12, 2, Q("240.974061 mm")),
    Sketcher.Constraint("DistanceX", -1, 1, 13, 2, Q("173.13594 mm")),
    Sketcher.Constraint("DistanceX", -1, 1, 14, 2, Q("172.691631 mm")),
    Sketcher.Constraint("DistanceX", -1, 1, 16, 2, Q("172.247318 mm")),
    Sketcher.Constraint("DistanceY", -1, 1, 19, 2, Q("245.822321 mm")),
    Sketcher.Constraint("DistanceY", -1, 1, 31, 1, Q("256.827108 mm")),
    Sketcher.Constraint("DistanceX", -1, 1, 33, 2, Q("174.812589 mm")),
    Sketcher.Constraint("DistanceY", -1, 1, 34, 2, Q("257.083632 mm")),
    Sketcher.Constraint("DistanceX", -1, 1, 36, 2, Q("174.81259 mm")),
    Sketcher.Constraint("DistanceX", -1, 1, 38, 2, Q("172.691628 mm")),
    Sketcher.Constraint("DistanceX", -1, 1, 43, 2, Q("159.39086 mm")),
    Sketcher.Constraint("DistanceY", -1, 1, 44, 2, Q("229.628769 mm")),
    Sketcher.Constraint("DistanceY", -1, 1, 51, 2, Q("220.554882 mm")),
    Sketcher.Constraint("DistanceY", -1, 1, 54, 2, Q("220.55488 mm")),
    Sketcher.Constraint("DistanceX", -1, 1, 58, 2, Q("133.337662 mm")),
    Sketcher.Constraint("DistanceX", -1, 1, 72, 2, Q("147.601261 mm")),
    Sketcher.Constraint("DistanceY", -1, 1, 75, 2, Q("220.554882 mm")),
    Sketcher.Constraint("DistanceX", -1, 1, 77, 2, Q("153.689049 mm")),
    Sketcher.Constraint("DistanceY", -1, 1, 78, 2, Q("220.554882 mm")),
    Sketcher.Constraint("Distance", 44, Q("57.048364 mm")),
    Sketcher.Constraint("DistanceX", -1, 1, 31, 3, Q("172.247318 mm")),
    Sketcher.Constraint("DistanceY", -1, 1, 36, 3, Q("262.214064 mm")),
    Sketcher.Constraint("DistanceX", -1, 1, 40, 3, Q("171.734272 mm")),
    Sketcher.Constraint("DistanceX", -1, 1, 43, 3, Q("165.195284 mm")),
    Sketcher.Constraint("DistanceX", -1, 1, 48, 3, Q("125.403906 mm")),
    Sketcher.Constraint("DistanceY", -1, 1, 48, 3, Q("223.633196 mm")),
    Sketcher.Constraint("DistanceX", -1, 1, 49, 3, Q("126.292523 mm")),
    Sketcher.Constraint("DistanceY", -1, 1, 56, 3, Q("222.231534 mm")),
    Sketcher.Constraint("DistanceX", -1, 1, 58, 3, Q("133.337662 mm")),
    Sketcher.Constraint("DistanceX", -1, 1, 72, 3, Q("147.156953 mm")),
    Sketcher.Constraint("DistanceX", -1, 1, 74, 3, Q("148.558616 mm")),
    Sketcher.Constraint("DistanceX", -1, 1, 2, 1, Q("154.646402 mm")),
    Sketcher.Constraint("DistanceY", -1, 1, 10, 2, Q("235.330585 mm")),
    Sketcher.Constraint("DistanceX", -1, 1, 30, 2, Q("171.990796 mm")),
    Sketcher.Constraint("DistanceX", -1, 1, 39, 1, Q("171.990796 mm")),
    Sketcher.Constraint("DistanceX", -1, 1, 48, 2, Q("125.848214 mm")),
    Sketcher.Constraint("DistanceX", -1, 1, 49, 1, Q("126.549046 mm")),
    Sketcher.Constraint("DistanceX", -1, 1, 56, 2, Q("132.192523 mm")),
    Sketcher.Constraint("DistanceX", -1, 1, 57, 1, Q("132.893354 mm")),
    Sketcher.Constraint("DistanceX", -1, 1, 73, 1, Q("148.302093 mm")),
])
sketch1.setExpression("Constraints[123]", "Params.sketch1_width")
sketch1.setExpression("Constraints[124]", "Params.sketch1_height")
sketch1.setExpression("Constraints[125]", "Params.sketch1_height2")
sketch1.setExpression("Constraints[126]", "Params.sketch1_width2")
sketch1.setExpression("Constraints[127]", "Params.sketch1_width3")
pad1 = body.newObject("PartDesign::Pad", "Pad")
pad1.Profile = sketch1
pad1.setExpression("Length", "Params.pad1_length")

doc.recompute()
